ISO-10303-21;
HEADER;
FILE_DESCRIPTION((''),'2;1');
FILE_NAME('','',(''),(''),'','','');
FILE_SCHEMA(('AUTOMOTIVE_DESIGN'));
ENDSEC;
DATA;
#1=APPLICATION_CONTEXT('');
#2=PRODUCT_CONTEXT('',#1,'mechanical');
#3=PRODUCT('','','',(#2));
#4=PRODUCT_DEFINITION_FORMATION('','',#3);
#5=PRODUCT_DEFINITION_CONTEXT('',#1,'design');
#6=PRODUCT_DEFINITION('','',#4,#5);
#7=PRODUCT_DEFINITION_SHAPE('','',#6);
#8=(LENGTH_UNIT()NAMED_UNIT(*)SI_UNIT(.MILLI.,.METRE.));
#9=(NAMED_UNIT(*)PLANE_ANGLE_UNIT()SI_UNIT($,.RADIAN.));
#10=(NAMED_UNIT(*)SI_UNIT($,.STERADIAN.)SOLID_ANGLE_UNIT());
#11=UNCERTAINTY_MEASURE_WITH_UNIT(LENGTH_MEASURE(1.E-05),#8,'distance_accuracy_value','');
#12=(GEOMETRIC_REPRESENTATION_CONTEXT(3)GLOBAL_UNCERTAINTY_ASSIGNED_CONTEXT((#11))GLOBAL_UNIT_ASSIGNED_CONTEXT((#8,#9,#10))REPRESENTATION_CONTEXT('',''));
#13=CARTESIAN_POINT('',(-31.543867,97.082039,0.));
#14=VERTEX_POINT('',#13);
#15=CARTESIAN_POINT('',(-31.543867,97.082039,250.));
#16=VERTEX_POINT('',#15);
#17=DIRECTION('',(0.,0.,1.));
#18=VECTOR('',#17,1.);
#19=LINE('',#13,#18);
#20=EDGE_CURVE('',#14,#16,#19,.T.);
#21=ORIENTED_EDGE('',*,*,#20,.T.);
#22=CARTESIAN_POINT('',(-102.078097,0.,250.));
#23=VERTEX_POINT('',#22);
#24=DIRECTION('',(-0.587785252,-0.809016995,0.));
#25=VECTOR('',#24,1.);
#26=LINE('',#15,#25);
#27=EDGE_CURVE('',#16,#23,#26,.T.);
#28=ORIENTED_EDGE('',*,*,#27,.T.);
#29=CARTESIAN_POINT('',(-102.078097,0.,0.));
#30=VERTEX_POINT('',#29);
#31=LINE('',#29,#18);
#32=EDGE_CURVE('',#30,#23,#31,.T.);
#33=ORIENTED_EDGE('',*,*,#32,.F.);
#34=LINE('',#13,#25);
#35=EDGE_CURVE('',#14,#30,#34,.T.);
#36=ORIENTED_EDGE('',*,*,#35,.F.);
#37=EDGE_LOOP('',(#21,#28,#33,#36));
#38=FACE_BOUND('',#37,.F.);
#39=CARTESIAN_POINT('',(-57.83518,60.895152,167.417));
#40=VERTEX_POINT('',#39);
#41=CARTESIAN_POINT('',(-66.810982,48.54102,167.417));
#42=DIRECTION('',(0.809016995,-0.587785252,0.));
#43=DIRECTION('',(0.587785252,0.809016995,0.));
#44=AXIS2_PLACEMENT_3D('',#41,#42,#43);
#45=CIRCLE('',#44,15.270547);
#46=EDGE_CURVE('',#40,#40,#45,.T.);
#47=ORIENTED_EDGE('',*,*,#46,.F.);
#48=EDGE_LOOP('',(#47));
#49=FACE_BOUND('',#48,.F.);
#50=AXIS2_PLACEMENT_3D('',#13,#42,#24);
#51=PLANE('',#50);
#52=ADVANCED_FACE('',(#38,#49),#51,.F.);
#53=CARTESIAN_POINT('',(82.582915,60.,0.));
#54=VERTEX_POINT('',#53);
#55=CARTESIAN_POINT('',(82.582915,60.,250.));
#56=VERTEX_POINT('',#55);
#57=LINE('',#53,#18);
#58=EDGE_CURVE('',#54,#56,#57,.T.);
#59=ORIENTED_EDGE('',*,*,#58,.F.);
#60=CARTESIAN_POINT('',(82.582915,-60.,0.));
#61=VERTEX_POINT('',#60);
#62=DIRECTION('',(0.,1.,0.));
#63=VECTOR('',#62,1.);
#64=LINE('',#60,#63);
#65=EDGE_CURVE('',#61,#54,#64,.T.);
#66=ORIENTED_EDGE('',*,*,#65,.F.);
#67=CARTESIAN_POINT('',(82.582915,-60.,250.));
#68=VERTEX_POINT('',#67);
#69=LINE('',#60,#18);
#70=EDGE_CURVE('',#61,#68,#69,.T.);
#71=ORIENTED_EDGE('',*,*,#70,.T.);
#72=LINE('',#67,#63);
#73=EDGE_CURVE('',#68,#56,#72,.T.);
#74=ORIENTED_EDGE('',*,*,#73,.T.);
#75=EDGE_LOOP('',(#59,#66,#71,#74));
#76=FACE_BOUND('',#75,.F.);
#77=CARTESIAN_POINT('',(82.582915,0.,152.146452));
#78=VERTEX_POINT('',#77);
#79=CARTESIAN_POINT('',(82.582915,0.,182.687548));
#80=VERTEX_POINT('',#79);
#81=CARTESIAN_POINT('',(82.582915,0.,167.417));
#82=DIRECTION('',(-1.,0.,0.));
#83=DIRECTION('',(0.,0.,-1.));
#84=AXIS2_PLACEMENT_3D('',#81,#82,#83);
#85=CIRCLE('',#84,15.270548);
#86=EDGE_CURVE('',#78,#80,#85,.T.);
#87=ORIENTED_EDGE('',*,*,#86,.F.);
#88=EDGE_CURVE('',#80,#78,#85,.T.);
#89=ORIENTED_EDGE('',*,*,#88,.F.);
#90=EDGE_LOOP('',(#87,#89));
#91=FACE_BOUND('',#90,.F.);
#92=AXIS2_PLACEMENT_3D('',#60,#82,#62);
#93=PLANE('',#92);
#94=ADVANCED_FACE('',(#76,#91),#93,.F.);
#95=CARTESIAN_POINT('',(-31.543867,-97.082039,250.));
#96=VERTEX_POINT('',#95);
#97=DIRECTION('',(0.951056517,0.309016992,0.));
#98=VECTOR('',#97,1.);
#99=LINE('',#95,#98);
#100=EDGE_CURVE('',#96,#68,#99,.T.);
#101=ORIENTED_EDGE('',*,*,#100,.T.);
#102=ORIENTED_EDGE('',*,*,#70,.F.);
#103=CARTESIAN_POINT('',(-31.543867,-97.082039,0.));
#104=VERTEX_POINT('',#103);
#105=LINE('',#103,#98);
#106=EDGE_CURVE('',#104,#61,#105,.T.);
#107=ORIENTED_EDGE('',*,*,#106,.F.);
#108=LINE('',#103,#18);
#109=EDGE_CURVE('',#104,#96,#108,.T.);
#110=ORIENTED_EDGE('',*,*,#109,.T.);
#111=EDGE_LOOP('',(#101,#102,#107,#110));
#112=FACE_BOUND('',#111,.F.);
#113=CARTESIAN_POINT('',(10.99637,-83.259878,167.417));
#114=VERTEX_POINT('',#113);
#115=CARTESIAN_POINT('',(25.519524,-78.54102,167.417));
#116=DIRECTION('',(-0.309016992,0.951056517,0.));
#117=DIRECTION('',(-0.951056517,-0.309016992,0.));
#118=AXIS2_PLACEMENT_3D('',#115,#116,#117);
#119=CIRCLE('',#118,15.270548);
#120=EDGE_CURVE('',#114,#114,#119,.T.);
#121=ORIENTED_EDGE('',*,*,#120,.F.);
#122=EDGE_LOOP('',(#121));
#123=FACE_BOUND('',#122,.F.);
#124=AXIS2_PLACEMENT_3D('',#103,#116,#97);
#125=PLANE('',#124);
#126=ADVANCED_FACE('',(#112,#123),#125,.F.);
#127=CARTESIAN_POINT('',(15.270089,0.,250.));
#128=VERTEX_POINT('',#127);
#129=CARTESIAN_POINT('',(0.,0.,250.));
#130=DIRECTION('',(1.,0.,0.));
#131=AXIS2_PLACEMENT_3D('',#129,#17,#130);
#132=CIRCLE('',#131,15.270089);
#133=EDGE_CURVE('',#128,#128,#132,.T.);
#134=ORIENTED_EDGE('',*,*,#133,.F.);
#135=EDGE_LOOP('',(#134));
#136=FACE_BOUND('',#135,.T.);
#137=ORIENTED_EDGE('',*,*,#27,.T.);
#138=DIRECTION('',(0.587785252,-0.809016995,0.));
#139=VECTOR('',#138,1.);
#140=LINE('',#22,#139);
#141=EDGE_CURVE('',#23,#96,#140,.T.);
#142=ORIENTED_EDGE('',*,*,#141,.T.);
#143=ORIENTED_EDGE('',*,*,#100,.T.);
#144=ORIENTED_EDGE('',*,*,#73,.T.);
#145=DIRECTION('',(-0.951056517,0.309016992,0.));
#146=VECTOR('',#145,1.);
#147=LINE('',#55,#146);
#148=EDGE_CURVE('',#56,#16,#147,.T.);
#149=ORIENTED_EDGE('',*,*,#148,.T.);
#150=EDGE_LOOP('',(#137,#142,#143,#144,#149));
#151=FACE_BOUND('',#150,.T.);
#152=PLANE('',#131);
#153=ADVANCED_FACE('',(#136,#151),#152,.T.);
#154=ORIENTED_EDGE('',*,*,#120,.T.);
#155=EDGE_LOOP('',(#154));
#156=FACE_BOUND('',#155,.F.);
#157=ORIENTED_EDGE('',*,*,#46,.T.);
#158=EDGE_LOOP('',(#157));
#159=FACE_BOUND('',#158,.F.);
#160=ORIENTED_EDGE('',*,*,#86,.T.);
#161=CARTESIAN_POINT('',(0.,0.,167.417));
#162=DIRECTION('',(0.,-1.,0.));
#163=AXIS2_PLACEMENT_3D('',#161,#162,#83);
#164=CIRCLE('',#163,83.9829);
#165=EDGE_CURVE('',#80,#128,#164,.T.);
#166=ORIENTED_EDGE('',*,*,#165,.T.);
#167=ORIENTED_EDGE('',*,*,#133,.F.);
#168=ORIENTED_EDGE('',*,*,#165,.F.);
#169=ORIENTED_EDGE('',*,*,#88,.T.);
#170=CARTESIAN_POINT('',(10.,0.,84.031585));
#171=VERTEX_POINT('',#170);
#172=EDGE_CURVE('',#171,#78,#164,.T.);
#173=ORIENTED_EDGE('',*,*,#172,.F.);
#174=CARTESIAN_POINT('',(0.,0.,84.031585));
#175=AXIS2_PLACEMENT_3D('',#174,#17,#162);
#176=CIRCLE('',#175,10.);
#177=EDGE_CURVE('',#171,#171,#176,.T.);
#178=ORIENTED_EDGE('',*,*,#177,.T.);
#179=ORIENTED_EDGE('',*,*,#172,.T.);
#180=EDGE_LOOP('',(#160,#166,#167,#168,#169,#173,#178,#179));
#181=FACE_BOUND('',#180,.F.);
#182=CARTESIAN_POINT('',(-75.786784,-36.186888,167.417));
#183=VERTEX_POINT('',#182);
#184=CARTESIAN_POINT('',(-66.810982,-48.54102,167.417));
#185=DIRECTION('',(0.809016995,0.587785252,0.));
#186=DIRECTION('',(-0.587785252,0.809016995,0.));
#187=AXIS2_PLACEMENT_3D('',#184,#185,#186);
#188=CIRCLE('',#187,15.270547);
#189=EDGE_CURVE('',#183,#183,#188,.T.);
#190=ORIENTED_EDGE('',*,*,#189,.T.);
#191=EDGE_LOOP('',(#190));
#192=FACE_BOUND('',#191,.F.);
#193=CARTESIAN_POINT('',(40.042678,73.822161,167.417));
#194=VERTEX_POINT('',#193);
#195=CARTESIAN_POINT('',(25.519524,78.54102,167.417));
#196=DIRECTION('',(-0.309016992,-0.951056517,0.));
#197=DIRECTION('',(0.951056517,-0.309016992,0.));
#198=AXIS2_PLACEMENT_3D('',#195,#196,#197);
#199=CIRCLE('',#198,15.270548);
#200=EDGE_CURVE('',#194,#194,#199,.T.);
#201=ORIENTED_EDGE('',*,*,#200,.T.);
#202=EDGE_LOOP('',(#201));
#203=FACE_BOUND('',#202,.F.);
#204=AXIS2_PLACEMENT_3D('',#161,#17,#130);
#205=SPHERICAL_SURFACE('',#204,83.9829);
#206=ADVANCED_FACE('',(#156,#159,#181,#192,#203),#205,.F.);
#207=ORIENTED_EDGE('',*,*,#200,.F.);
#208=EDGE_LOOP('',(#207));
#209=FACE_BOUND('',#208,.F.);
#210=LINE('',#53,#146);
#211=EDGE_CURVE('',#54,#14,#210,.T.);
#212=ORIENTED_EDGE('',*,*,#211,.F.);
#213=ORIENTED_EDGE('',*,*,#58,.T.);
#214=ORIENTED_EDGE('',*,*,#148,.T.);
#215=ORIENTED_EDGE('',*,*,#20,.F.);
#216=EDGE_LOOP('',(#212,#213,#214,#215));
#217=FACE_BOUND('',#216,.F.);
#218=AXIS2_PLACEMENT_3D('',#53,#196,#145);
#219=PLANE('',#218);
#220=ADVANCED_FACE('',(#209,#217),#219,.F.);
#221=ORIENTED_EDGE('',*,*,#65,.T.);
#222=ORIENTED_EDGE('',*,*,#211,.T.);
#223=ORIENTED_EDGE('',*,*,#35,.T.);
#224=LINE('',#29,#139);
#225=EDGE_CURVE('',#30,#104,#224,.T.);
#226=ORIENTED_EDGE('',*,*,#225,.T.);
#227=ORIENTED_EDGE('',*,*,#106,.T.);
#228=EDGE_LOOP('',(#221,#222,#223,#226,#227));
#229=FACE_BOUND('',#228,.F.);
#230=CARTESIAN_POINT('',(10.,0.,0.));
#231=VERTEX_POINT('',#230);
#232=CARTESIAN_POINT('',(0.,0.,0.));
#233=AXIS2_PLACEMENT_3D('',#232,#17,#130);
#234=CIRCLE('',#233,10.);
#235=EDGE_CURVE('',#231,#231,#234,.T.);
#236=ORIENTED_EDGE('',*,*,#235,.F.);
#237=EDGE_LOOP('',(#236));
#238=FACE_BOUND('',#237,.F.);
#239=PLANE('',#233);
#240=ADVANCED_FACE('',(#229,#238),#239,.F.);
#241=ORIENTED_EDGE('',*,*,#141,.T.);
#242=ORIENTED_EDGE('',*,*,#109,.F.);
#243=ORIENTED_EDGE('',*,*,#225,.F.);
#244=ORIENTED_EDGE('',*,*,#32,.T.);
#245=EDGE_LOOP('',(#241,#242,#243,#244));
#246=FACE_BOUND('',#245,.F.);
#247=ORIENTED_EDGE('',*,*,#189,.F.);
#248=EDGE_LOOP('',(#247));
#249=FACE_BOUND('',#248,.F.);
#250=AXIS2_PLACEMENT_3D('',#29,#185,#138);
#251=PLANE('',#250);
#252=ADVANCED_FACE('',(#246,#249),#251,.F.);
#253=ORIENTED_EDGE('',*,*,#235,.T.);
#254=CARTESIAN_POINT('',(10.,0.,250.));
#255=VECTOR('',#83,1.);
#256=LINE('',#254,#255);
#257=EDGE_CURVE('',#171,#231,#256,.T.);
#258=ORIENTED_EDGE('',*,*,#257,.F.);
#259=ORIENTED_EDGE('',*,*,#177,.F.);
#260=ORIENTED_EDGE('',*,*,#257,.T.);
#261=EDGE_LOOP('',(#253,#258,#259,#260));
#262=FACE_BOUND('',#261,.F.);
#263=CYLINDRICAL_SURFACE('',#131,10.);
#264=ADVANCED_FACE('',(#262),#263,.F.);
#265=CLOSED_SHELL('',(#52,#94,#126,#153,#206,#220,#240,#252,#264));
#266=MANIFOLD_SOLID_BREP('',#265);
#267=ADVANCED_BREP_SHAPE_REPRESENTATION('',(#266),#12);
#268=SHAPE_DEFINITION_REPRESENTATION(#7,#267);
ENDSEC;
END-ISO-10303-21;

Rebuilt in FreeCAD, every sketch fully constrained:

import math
import FreeCAD as App
import Part
import Sketcher
from FreeCAD import Vector
Q = App.Units.Quantity


def add_polygon(sketch, points):
    """Adds a closed chain of lines whose ends are joined by coincident constraints."""
    first, n = sketch.GeometryCount, len(points)
    for a, b in zip(points, points[1:] + points[:1]):
        sketch.addGeometry(Part.LineSegment(App.Vector(*a, 0), App.Vector(*b, 0)), False)
    for i in range(n):
        sketch.addConstraint(Sketcher.Constraint("Coincident", first + i, 2, first + (i + 1) % n, 1))

doc = App.newDocument("Part")
body = doc.addObject("PartDesign::Body", "Body")

sketch1 = body.newObject("Sketcher::SketchObject", "Sketch")
sketch1.AttachmentSupport = (doc.getObject("XZ_Plane"), [""])
sketch1.MapMode = "FlatFace"
sketch1.addGeometry(Part.ArcOfCircle(Part.Circle(Vector(0, 167, 0), Vector(0, 0, 1), 84), math.radians(-90), math.radians(90)), False)
sketch1.addGeometry(Part.LineSegment(Vector(0, 251, 0), Vector(0, 83, 0)), False)
sketch1.addConstraint(Sketcher.Constraint("Coincident", 0, 1, 1, 2))
sketch1.addConstraint(Sketcher.Constraint("Coincident", 1, 1, 0, 2))
sketch1.addConstraint(Sketcher.Constraint("Vertical", 1))
sketch1.addConstraint(Sketcher.Constraint("PointOnObject", 0, 3, -2))
sketch1.addConstraint(Sketcher.Constraint("PointOnObject", 0, 1, -2))
sketch1.addConstraint(Sketcher.Constraint("Radius", 0, Q("83.9829 mm")))
sketch1.addConstraint(Sketcher.Constraint("DistanceY", -1, 1, 0, 3, Q("167.417 mm")))
revolution = body.newObject("PartDesign::Revolution", "Revolution")
revolution.Profile = sketch1
revolution.ReferenceAxis = (sketch1, ["V_Axis"])
revolution.Angle = 360
body2 = doc.addObject("PartDesign::Body", "Body001")

sketch2 = body2.newObject("Sketcher::SketchObject", "Sketch001")
sketch2.AttachmentSupport = (doc.getObject("XY_Plane001"), [""])
sketch2.MapMode = "FlatFace"
add_polygon(sketch2, [(-32, 97), (-102, 0), (-32, -97), (83, -60), (83, 60)])
sketch2.addConstraint(Sketcher.Constraint("Vertical", 3))
sketch2.addConstraint(Sketcher.Constraint("Symmetric", 1, 2, 4, 2, -1))
sketch2.addConstraint(Sketcher.Constraint("PointOnObject", 0, 2, -1))
sketch2.addConstraint(Sketcher.Constraint("Equal", 1, 2))
sketch2.addConstraint(Sketcher.Constraint("Equal", 2, 4))
sketch2.addConstraint(Sketcher.Constraint("DistanceY", 3, 1, 3, 2, Q("120 mm")))
sketch2.addConstraint(Sketcher.Constraint("Angle", 0, Q("-126 deg")))
sketch2.addConstraint(Sketcher.Constraint("Angle", 2, Q("18 deg")))
sketch2.addConstraint(Sketcher.Constraint("DistanceX", 0, 2, -1, 1, Q("102.078097 mm")))
pad1 = body2.newObject("PartDesign::Pad", "Pad")
pad1.Profile = sketch2
pad1.Length = 250

sketch3 = body2.newObject("Sketcher::SketchObject", "Sketch002")
sketch3.AttachmentSupport = (doc.getObject("XY_Plane001"), [""])
sketch3.MapMode = "FlatFace"
sketch3.AttachmentOffset = App.Placement(Vector(0, 0, 250), App.Rotation())
sketch3.addGeometry(Part.Circle(Vector(0, 0, 0), Vector(0, 0, 1), 10), False)
sketch3.addConstraint(Sketcher.Constraint("Coincident", 0, 3, -1, 1))
sketch3.addConstraint(Sketcher.Constraint("Diameter", 0, Q("20 mm")))
pocket1 = body2.newObject("PartDesign::Pocket", "Pocket")
pocket1.Profile = sketch3
pocket1.Type = "ThroughAll"
doc.recompute()

boolean = body2.newObject("PartDesign::Boolean", "Boolean")
boolean.Type = "Cut"
boolean.addObjects([body])

doc.recompute()
